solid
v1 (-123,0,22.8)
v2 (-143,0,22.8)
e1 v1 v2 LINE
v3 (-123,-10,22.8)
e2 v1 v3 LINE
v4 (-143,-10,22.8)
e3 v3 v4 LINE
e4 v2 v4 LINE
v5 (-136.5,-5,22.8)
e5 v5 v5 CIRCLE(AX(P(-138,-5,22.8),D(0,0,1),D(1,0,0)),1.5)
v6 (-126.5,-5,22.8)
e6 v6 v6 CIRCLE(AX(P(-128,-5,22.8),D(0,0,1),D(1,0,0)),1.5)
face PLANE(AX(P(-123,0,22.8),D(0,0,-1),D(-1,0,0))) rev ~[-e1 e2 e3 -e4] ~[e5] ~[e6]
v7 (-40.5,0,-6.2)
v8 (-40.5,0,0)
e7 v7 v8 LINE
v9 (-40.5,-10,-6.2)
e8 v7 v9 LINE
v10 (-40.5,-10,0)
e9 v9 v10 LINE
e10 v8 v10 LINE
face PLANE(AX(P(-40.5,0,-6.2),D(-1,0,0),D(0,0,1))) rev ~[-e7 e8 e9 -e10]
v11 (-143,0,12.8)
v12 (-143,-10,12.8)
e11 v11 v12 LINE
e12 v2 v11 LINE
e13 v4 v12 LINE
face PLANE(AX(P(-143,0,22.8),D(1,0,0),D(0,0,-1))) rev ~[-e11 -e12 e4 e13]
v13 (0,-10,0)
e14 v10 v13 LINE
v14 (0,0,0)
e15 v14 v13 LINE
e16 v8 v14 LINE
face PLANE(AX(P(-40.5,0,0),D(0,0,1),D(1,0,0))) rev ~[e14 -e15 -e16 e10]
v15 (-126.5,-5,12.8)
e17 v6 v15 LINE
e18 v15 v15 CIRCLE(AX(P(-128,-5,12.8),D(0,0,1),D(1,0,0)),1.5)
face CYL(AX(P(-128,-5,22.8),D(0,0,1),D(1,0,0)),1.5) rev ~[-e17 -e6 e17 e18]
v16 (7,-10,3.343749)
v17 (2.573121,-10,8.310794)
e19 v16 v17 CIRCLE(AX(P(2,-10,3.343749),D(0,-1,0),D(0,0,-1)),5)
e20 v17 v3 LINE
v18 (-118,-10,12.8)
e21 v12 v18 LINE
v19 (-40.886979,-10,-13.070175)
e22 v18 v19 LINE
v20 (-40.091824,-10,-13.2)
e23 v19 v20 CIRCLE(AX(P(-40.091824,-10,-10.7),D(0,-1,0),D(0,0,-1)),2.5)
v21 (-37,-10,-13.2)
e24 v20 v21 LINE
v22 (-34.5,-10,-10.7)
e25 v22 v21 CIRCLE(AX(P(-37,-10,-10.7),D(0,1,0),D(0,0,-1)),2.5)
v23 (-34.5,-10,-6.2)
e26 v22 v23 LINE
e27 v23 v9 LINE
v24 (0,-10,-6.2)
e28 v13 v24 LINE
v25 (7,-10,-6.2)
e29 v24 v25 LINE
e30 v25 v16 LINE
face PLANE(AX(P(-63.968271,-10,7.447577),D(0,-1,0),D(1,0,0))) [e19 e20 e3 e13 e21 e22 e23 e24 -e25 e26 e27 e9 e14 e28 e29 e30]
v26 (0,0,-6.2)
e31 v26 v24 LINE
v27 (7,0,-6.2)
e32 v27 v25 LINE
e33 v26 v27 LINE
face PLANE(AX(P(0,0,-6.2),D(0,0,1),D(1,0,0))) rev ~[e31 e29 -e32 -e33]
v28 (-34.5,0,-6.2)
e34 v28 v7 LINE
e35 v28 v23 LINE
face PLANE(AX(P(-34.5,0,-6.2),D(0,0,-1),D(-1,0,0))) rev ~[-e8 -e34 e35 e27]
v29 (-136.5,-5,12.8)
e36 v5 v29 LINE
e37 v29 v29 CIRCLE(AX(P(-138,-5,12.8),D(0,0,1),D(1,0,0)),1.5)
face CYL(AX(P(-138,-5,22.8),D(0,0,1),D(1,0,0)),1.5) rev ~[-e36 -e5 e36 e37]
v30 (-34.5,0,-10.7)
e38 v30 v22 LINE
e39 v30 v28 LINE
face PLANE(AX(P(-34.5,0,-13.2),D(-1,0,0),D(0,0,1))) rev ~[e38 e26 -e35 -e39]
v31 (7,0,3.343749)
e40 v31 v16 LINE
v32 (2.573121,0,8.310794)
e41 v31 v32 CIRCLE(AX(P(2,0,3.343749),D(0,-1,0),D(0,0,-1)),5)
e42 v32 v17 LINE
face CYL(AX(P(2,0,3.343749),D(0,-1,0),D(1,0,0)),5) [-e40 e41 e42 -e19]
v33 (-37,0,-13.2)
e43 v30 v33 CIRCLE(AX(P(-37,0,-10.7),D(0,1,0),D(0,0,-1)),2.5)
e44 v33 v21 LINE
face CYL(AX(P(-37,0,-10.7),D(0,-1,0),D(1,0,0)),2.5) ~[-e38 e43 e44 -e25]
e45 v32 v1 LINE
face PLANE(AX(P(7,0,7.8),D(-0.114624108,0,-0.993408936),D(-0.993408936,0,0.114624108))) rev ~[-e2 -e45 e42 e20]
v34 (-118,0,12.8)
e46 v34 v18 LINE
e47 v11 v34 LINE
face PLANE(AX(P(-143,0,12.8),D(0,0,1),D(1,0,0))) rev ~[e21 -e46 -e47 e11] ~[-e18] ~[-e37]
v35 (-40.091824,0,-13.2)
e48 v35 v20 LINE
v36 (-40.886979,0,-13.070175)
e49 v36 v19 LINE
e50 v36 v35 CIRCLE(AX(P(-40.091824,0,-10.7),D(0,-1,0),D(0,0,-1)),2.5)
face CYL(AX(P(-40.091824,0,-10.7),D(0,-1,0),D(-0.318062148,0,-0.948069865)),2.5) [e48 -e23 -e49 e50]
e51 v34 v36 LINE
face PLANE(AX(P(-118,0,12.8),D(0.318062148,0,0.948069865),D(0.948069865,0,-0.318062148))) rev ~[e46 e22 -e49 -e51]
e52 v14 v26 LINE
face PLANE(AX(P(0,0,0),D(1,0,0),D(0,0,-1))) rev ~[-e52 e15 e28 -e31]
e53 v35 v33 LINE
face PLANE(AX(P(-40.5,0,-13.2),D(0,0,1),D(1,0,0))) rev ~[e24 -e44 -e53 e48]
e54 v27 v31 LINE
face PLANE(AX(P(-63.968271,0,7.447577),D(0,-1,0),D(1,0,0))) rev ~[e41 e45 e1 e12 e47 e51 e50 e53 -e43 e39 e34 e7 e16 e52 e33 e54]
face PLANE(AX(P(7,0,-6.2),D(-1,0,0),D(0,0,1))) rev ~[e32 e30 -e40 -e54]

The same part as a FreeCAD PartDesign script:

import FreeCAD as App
import Part
import Sketcher

V = App.Vector


def edges_at(feature, points):
    """Names of the edges that pass closest to the given points."""
    edges = feature.Shape.Edges
    near = lambda p: min(range(len(edges)), key=lambda i: edges[i].distToShape(Part.Vertex(*p))[0])
    return sorted({f"Edge{near(p) + 1}" for p in points})

doc = App.newDocument("Part")
params = doc.addObject("Spreadsheet::Sheet", "Params")
for row, (alias, value) in enumerate([
    ("sketch1_width", "7 mm"),
    ("sketch1_width2", "20 mm"),
    ("sketch1_width3", "25 mm"),
    ("sketch1_width4", "6 mm"),
    ("sketch1_height", "14 mm"),
    ("pad1_length", "10 mm"),
    ("fillet_radius", "5 mm"),
    ("fillet2_radius", "2.5 mm"),
    ("sketch2_diameter", "3 mm"),
    ("pocket1_length", "25 mm"),
], start=1):
    params.set(f"A{row}", alias)
    params.set(f"B{row}", "=" + value)
    params.setAlias(f"B{row}", alias)

body = doc.addObject("PartDesign::Body", "Body")

sketch1 = body.newObject("Sketcher::SketchObject", "Sketch")
sketch1.AttachmentSupport = (doc.getObject("XZ_Plane"), [""])
sketch1.MapMode = "FlatFace"
sketch1.addGeometry([
    Part.LineSegment(V(-40.5, 0, 0), V(0, 0, 0)),
    Part.LineSegment(V(0, 0, 0), V(0, -6.2, 0)),
    Part.LineSegment(V(0, -6.2, 0), V(7, -6.2, 0)),
    Part.LineSegment(V(7, -6.2, 0), V(7, 7.8, 0)),
    Part.LineSegment(V(7, 7.8, 0), V(-123, 22.8, 0)),
    Part.LineSegment(V(-123, 22.8, 0), V(-143, 22.8, 0)),
    Part.LineSegment(V(-143, 22.8, 0), V(-143, 12.8, 0)),
    Part.LineSegment(V(-143, 12.8, 0), V(-118, 12.8, 0)),
    Part.LineSegment(V(-118, 12.8, 0), V(-40.5, -13.2, 0)),
    Part.LineSegment(V(-40.5, -13.2, 0), V(-34.5, -13.2, 0)),
    Part.LineSegment(V(-34.5, -13.2, 0), V(-34.5, -6.2, 0)),
    Part.LineSegment(V(-34.5, -6.2, 0), V(-40.5, -6.2, 0)),
    Part.LineSegment(V(-40.5, -6.2, 0), V(-40.5, 0, 0)),
], False)
sketch1.addConstraint([
    Sketcher.Constraint("Coincident", 0, 2, 1, 1),
    Sketcher.Constraint("Coincident", 1, 2, 2, 1),
    Sketcher.Constraint("Coincident", 2, 2, 3, 1),
    Sketcher.Constraint("Coincident", 3, 2, 4, 1),
    Sketcher.Constraint("Coincident", 4, 2, 5, 1),
    Sketcher.Constraint("Coincident", 5, 2, 6, 1),
    Sketcher.Constraint("Coincident", 6, 2, 7, 1),
    Sketcher.Constraint("Coincident", 7, 2, 8, 1),
    Sketcher.Constraint("Coincident", 8, 2, 9, 1),
    Sketcher.Constraint("Coincident", 9, 2, 10, 1),
    Sketcher.Constraint("Coincident", 10, 2, 11, 1),
    Sketcher.Constraint("Coincident", 11, 2, 12, 1),
    Sketcher.Constraint("Coincident", 12, 2, 0, 1),
    Sketcher.Constraint("Horizontal", 0),
    Sketcher.Constraint("Vertical", 1),
    Sketcher.Constraint("Horizontal", 2),
    Sketcher.Constraint("Vertical", 3),
    Sketcher.Constraint("Horizontal", 5),
    Sketcher.Constraint("Vertical", 6),
    Sketcher.Constraint("Horizontal", 7),
    Sketcher.Constraint("Horizontal", 9),
    Sketcher.Constraint("Vertical", 10),
    Sketcher.Constraint("Horizontal", 11),
    Sketcher.Constraint("Vertical", 12),
    Sketcher.Constraint("Coincident", 0, 2, -1, 1),
    Sketcher.Constraint("Horizontal", 2, 2, 10, 2),
    Sketcher.Constraint("Vertical", 8, 2, 11, 2),
    Sketcher.Constraint("Equal", 2, 10),
    Sketcher.Constraint("DistanceX", 2, 1, 2, 2, 7.0),
    Sketcher.Constraint("DistanceX", 5, 2, 5, 1, 20.0),
    Sketcher.Constraint("DistanceX", 7, 1, 7, 2, 25.0),
    Sketcher.Constraint("DistanceX", 9, 1, 9, 2, 6.0),
    Sketcher.Constraint("DistanceY", 3, 1, 3, 2, 14.0),
    Sketcher.Constraint("DistanceY", 6, 2, 6, 1, 10.0),
    Sketcher.Constraint("DistanceX", 0, 1, 0, 2, 40.5),
    Sketcher.Constraint("DistanceY", 1, 2, 1, 1, 6.2),
    Sketcher.Constraint("DistanceX", 4, 2, -1, 1, 123.0),
    Sketcher.Constraint("DistanceY", 1, 2, 4, 2, 29.0),
])
sketch1.setExpression("Constraints[28]", "Params.sketch1_width")
sketch1.setExpression("Constraints[29]", "Params.sketch1_width2")
sketch1.setExpression("Constraints[30]", "Params.sketch1_width3")
sketch1.setExpression("Constraints[31]", "Params.sketch1_width4")
sketch1.setExpression("Constraints[32]", "Params.sketch1_height")
pad1 = body.newObject("PartDesign::Pad", "Pad")
pad1.Profile = sketch1
pad1.setExpression("Length", "Params.pad1_length")
doc.recompute()

fillet = body.newObject("PartDesign::Fillet", "Fillet")
fillet.Base = (pad1, edges_at(pad1, [(7, -5, 7.8)]))
fillet.setExpression("Radius", "Params.fillet_radius")
doc.recompute()

fillet2 = body.newObject("PartDesign::Fillet", "Fillet001")
fillet2.Base = (fillet, edges_at(fillet, [(-34.5, -5, -13.2), (-40.5, -5, -13.2)]))
fillet2.setExpression("Radius", "Params.fillet2_radius")

sketch2 = body.newObject("Sketcher::SketchObject", "Sketch001")
sketch2.AttachmentSupport = (doc.getObject("XY_Plane"), [""])
sketch2.MapMode = "FlatFace"
sketch2.AttachmentOffset = App.Placement(V(0, 0, 22.8), App.Rotation())
sketch2.addGeometry([
    Part.Circle(V(-128, -5, 0), V(0, 0, 1), 1.5),
    Part.Circle(V(-138, -5, 0), V(0, 0, 1), 1.5),
], False)
sketch2.addConstraint([
    Sketcher.Constraint("Equal", 0, 1),
    Sketcher.Constraint("Horizontal", 0, 3, 1, 3),
    Sketcher.Constraint("Diameter", 0, 3.0),
    Sketcher.Constraint("DistanceX", 0, 3, -1, 1, 128.0),
    Sketcher.Constraint("DistanceY", 0, 3, -1, 1, 5.0),
    Sketcher.Constraint("DistanceX", 1, 3, -1, 1, 138.0),
])
sketch2.setExpression("Constraints[2]", "Params.sketch2_diameter")
pocket1 = body.newObject("PartDesign::Pocket", "Pocket")
pocket1.Profile = sketch2
pocket1.setExpression("Length", "Params.pocket1_length")

doc.recompute()
